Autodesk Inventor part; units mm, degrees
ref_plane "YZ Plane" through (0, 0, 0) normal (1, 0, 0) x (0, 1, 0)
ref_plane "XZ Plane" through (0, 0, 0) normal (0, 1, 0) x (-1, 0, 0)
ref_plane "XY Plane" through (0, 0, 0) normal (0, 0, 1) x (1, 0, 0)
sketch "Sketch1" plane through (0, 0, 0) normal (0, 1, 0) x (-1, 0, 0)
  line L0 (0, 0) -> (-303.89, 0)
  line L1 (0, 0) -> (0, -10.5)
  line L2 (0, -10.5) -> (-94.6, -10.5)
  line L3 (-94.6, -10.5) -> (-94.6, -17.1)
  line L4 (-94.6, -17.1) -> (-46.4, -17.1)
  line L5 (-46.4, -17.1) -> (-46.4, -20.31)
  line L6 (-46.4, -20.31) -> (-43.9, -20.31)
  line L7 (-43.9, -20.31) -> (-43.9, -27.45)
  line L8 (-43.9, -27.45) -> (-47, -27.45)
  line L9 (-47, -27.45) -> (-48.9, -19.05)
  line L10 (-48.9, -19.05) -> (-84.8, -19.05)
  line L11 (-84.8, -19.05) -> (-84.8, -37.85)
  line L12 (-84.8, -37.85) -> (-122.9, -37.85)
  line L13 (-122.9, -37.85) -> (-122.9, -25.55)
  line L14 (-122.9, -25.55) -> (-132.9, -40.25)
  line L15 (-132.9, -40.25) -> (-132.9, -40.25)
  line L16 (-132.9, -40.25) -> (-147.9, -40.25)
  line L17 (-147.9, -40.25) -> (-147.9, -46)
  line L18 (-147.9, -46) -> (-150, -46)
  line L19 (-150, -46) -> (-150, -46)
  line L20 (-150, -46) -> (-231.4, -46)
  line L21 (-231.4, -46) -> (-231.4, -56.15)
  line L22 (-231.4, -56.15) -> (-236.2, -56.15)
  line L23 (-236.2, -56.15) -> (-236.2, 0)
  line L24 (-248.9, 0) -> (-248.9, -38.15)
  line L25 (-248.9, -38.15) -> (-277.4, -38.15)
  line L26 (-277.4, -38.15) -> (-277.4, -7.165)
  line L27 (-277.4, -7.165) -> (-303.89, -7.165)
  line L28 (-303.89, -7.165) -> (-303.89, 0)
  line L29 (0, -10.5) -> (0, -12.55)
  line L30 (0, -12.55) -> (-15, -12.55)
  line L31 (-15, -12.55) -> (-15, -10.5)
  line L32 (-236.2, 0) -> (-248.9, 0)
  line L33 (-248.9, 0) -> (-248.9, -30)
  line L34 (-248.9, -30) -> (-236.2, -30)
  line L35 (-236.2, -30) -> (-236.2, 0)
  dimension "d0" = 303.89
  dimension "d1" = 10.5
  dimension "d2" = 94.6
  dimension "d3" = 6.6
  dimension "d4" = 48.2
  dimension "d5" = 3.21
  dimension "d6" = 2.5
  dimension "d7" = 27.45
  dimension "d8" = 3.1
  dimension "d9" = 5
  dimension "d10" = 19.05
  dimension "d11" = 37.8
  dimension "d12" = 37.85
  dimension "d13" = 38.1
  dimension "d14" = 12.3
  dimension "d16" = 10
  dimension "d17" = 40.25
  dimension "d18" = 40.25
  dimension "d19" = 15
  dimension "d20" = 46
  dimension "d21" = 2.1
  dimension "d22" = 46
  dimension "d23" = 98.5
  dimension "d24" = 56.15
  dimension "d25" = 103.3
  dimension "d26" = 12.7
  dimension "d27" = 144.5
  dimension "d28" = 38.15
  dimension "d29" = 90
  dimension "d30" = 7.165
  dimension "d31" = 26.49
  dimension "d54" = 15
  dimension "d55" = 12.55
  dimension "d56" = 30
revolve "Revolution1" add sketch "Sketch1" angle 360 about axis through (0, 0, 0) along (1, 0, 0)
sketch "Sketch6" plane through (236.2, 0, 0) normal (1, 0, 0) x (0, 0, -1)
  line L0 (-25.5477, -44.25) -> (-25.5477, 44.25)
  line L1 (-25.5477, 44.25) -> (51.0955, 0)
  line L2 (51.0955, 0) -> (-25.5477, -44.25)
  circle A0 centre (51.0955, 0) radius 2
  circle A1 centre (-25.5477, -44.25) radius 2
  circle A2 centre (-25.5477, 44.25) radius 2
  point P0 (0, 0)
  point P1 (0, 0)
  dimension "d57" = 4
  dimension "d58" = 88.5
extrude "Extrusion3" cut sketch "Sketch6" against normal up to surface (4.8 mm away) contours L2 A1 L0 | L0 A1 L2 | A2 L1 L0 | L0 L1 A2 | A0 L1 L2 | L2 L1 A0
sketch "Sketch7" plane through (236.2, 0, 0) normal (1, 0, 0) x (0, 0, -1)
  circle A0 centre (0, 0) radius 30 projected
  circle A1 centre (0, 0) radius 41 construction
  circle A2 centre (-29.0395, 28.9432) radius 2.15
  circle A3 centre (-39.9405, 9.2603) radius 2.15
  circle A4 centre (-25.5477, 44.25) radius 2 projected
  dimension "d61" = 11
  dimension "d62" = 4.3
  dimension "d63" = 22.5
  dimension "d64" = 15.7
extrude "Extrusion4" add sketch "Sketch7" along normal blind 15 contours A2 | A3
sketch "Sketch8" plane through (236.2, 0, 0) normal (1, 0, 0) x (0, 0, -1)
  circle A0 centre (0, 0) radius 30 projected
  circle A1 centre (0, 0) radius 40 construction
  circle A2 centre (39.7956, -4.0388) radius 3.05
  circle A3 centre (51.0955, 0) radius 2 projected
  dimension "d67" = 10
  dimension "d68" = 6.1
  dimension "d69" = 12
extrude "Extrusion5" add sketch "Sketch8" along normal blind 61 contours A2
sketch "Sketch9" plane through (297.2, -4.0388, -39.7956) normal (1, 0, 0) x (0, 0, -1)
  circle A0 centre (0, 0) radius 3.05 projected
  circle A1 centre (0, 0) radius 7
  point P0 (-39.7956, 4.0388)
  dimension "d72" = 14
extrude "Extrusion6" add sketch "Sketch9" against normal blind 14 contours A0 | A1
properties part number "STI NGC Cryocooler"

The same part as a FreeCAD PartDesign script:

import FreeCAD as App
import Part
import Sketcher


def add_polygon(sketch, points):
    """Adds a closed chain of lines whose ends are joined by coincident constraints."""
    first, n = sketch.GeometryCount, len(points)
    for a, b in zip(points, points[1:] + points[:1]):
        sketch.addGeometry(Part.LineSegment(App.Vector(*a, 0), App.Vector(*b, 0)), False)
    for i in range(n):
        sketch.addConstraint(Sketcher.Constraint("Coincident", first + i, 2, first + (i + 1) % n, 1))

doc = App.newDocument("Part")
body = doc.addObject("PartDesign::Body", "Body")

# Sketch on XZ plane
sketch1 = body.newObject("Sketcher::SketchObject", "Sketch")
sketch1.AttachmentSupport = (doc.getObject("XZ_Plane"), [""])
sketch1.MapMode = "FlatFace"
add_polygon(sketch1, [(0, 0), (303.9, 0), (303.9, -7.2), (277.4, -7.2), (277.4, -38.1), (248.9, -38.1), (248.9, -30), (236.2, -30), (236.2, -56.1), (231.4, -56.1), (231.4, -46), (147.9, -46), (147.9, -40.2), (132.9, -40.2), (122.9, -25.6), (122.9, -37.9), (84.8, -37.9), (84.8, -19.1), (48.9, -19.1), (47, -27.4), (43.9, -27.4), (43.9, -20.3), (46.4, -20.3), (46.4, -17.1), (94.6, -17.1), (94.6, -10.5), (15, -10.5), (15, -12.6), (0, -12.6)])  # lines 0-28
sketch1.addConstraint([
    Sketcher.Constraint("Horizontal", 0),
    Sketcher.Constraint("Vertical", 1),
    Sketcher.Constraint("Horizontal", 2),
    Sketcher.Constraint("Vertical", 3),
    Sketcher.Constraint("Horizontal", 4),
    Sketcher.Constraint("Vertical", 5),
    Sketcher.Constraint("Horizontal", 6),
    Sketcher.Constraint("Vertical", 7),
    Sketcher.Constraint("Horizontal", 8),
    Sketcher.Constraint("Vertical", 9),
    Sketcher.Constraint("Horizontal", 10),
    Sketcher.Constraint("Vertical", 11),
    Sketcher.Constraint("Horizontal", 12),
    Sketcher.Constraint("Vertical", 14),
    Sketcher.Constraint("Horizontal", 15),
    Sketcher.Constraint("Vertical", 16),
    Sketcher.Constraint("Horizontal", 17),
    Sketcher.Constraint("Horizontal", 19),
    Sketcher.Constraint("Vertical", 20),
    Sketcher.Constraint("Horizontal", 21),
    Sketcher.Constraint("Vertical", 22),
    Sketcher.Constraint("Horizontal", 23),
    Sketcher.Constraint("Vertical", 24),
    Sketcher.Constraint("Horizontal", 25),
    Sketcher.Constraint("Vertical", 26),
    Sketcher.Constraint("Horizontal", 27),
    Sketcher.Constraint("Vertical", 28),
    Sketcher.Constraint("Coincident", 28, 2, -1, 1),
    Sketcher.Constraint("Equal", 12, 27),
    Sketcher.Constraint("DistanceX", 12, 2, 12, 1, 15.0),
    Sketcher.Constraint("DistanceX", 6, 2, 6, 1, 12.7),
    Sketcher.Constraint("DistanceX", 15, 2, 15, 1, 38.1),
    Sketcher.Constraint("DistanceX", 19, 2, 19, 1, 3.1),
    Sketcher.Constraint("DistanceX", 21, 1, 21, 2, 2.5),
    Sketcher.Constraint("DistanceX", 23, 1, 23, 2, 48.2),
    Sketcher.Constraint("DistanceY", 14, 2, 14, 1, 12.3),
    Sketcher.Constraint("DistanceY", 24, 1, 24, 2, 6.6),
    Sketcher.Constraint("DistanceY", 5, 2, -1, 1, 30.0),
    Sketcher.Constraint("DistanceY", 9, 2, -1, 1, 46.0),
    Sketcher.Constraint("DistanceX", 8, 2, 3, 2, 46.0),
    Sketcher.Constraint("DistanceX", 13, 2, 12, 2, 10.0),
    Sketcher.Constraint("DistanceX", 19, 2, 17, 2, 5.0),
    Sketcher.Constraint("DistanceX", 0, 1, 0, 2, 303.89),
    Sketcher.Constraint("DistanceX", 2, 2, 2, 1, 26.49),
    Sketcher.Constraint("DistanceY", 22, 1, 22, 2, 3.21),
    Sketcher.Constraint("DistanceY", 28, 1, 28, 2, 12.55),
    Sketcher.Constraint("DistanceX", -1, 1, 23, 2, 94.6),
    Sketcher.Constraint("DistanceY", 24, 2, -1, 1, 10.5),
    Sketcher.Constraint("DistanceX", 12, 2, 9, 2, 98.5),
    Sketcher.Constraint("DistanceX", 12, 2, 6, 2, 103.3),
    Sketcher.Constraint("DistanceY", 1, 2, 1, 1, 7.165),
    Sketcher.Constraint("DistanceY", 3, 2, -1, 1, 38.15),
    Sketcher.Constraint("DistanceY", 7, 2, -1, 1, 56.15),
    Sketcher.Constraint("DistanceY", 11, 2, -1, 1, 40.25),
    Sketcher.Constraint("DistanceY", 14, 2, -1, 1, 37.85),
    Sketcher.Constraint("DistanceY", 16, 2, -1, 1, 19.05),
    Sketcher.Constraint("DistanceY", 18, 2, -1, 1, 27.45),
])
revolution = body.newObject("PartDesign::Revolution", "Revolution")
revolution.Profile = sketch1
revolution.ReferenceAxis = (sketch1, ["H_Axis"])
revolution.Angle = 360

# Sketch on YZ plane
sketch2 = body.newObject("Sketcher::SketchObject", "Sketch001")
sketch2.AttachmentSupport = (doc.getObject("YZ_Plane"), [""])
sketch2.MapMode = "FlatFace"
sketch2.AttachmentOffset = App.Placement(App.Vector(0, 0, 236.2), App.Rotation())
sketch2.addGeometry([
    Part.Circle(App.Vector(-44.2, 25.5, 0), App.Vector(0, 0, 1), 2),
    Part.Circle(App.Vector(44.2, 25.5, 0), App.Vector(0, 0, 1), 2),
    Part.Circle(App.Vector(0, -51.1, 0), App.Vector(0, 0, 1), 2),
], False)
sketch2.addConstraint([
    Sketcher.Constraint("Equal", 0, 1),
    Sketcher.Constraint("Equal", 1, 2),
    Sketcher.Constraint("Symmetric", 0, 3, 1, 3, -2),
    Sketcher.Constraint("PointOnObject", 2, 3, -2),
    Sketcher.Constraint("Diameter", 0, 4.0),
    Sketcher.Constraint("DistanceX", 0, 3, 1, 3, 88.5),
    Sketcher.Constraint("DistanceY", -1, 1, 0, 3, 25.5477),
    Sketcher.Constraint("DistanceY", 2, 3, -1, 1, 51.0955),
])
pocket1 = body.newObject("PartDesign::Pocket", "Pocket")
pocket1.Profile = sketch2
pocket1.Length = 4.8

# Sketch on YZ plane
sketch3 = body.newObject("Sketcher::SketchObject", "Sketch002")
sketch3.AttachmentSupport = (doc.getObject("YZ_Plane"), [""])
sketch3.MapMode = "FlatFace"
sketch3.AttachmentOffset = App.Placement(App.Vector(0, 0, 236.2), App.Rotation())
sketch3.addGeometry([
    Part.Circle(App.Vector(28.9, 29, 0), App.Vector(0, 0, 1), 2.1),
    Part.Circle(App.Vector(9.3, 39.9, 0), App.Vector(0, 0, 1), 2.1),
], False)
sketch3.addConstraint([
    Sketcher.Constraint("Equal", 0, 1),
    Sketcher.Constraint("Diameter", 0, 4.3),
    Sketcher.Constraint("DistanceX", 1, 3, 0, 3, 19.683),
    Sketcher.Constraint("DistanceY", 0, 3, 1, 3, 10.901),
    Sketcher.Constraint("DistanceX", -1, 1, 0, 3, 28.9432),
    Sketcher.Constraint("DistanceY", -1, 1, 0, 3, 29.0395),
])
pad1 = body.newObject("PartDesign::Pad", "Pad")
pad1.Profile = sketch3
pad1.Length = 15

# Sketch on YZ plane
sketch4 = body.newObject("Sketcher::SketchObject", "Sketch003")
sketch4.AttachmentSupport = (doc.getObject("YZ_Plane"), [""])
sketch4.MapMode = "FlatFace"
sketch4.AttachmentOffset = App.Placement(App.Vector(0, 0, 236.2), App.Rotation())
sketch4.addGeometry(Part.Circle(App.Vector(-4, -39.8, 0), App.Vector(0, 0, 1), 3), False)
sketch4.addConstraint([
    Sketcher.Constraint("Diameter", 0, 6.1),
    Sketcher.Constraint("DistanceX", 0, 3, -1, 1, 4.0388),
    Sketcher.Constraint("DistanceY", 0, 3, -1, 1, 39.7956),
])
pad2 = body.newObject("PartDesign::Pad", "Pad001")
pad2.Profile = sketch4
pad2.Length = 61

# Sketch on YZ plane
sketch5 = body.newObject("Sketcher::SketchObject", "Sketch004")
sketch5.AttachmentSupport = (doc.getObject("YZ_Plane"), [""])
sketch5.MapMode = "FlatFace"
sketch5.AttachmentOffset = App.Placement(App.Vector(0, 0, 297.2), App.Rotation())
sketch5.addGeometry(Part.Circle(App.Vector(-4, -40, 0), App.Vector(0, 0, 1), 7), False)
sketch5.addConstraint([
    Sketcher.Constraint("Diameter", 0, 14.0),
    Sketcher.Constraint("DistanceX", 0, 3, -1, 1, 4.0388),
    Sketcher.Constraint("DistanceY", 0, 3, -1, 1, 39.7956),
])
pad3 = body.newObject("PartDesign::Pad", "Pad002")
pad3.Profile = sketch5
pad3.Length = 14
pad3.Reversed = True

doc.recompute()
